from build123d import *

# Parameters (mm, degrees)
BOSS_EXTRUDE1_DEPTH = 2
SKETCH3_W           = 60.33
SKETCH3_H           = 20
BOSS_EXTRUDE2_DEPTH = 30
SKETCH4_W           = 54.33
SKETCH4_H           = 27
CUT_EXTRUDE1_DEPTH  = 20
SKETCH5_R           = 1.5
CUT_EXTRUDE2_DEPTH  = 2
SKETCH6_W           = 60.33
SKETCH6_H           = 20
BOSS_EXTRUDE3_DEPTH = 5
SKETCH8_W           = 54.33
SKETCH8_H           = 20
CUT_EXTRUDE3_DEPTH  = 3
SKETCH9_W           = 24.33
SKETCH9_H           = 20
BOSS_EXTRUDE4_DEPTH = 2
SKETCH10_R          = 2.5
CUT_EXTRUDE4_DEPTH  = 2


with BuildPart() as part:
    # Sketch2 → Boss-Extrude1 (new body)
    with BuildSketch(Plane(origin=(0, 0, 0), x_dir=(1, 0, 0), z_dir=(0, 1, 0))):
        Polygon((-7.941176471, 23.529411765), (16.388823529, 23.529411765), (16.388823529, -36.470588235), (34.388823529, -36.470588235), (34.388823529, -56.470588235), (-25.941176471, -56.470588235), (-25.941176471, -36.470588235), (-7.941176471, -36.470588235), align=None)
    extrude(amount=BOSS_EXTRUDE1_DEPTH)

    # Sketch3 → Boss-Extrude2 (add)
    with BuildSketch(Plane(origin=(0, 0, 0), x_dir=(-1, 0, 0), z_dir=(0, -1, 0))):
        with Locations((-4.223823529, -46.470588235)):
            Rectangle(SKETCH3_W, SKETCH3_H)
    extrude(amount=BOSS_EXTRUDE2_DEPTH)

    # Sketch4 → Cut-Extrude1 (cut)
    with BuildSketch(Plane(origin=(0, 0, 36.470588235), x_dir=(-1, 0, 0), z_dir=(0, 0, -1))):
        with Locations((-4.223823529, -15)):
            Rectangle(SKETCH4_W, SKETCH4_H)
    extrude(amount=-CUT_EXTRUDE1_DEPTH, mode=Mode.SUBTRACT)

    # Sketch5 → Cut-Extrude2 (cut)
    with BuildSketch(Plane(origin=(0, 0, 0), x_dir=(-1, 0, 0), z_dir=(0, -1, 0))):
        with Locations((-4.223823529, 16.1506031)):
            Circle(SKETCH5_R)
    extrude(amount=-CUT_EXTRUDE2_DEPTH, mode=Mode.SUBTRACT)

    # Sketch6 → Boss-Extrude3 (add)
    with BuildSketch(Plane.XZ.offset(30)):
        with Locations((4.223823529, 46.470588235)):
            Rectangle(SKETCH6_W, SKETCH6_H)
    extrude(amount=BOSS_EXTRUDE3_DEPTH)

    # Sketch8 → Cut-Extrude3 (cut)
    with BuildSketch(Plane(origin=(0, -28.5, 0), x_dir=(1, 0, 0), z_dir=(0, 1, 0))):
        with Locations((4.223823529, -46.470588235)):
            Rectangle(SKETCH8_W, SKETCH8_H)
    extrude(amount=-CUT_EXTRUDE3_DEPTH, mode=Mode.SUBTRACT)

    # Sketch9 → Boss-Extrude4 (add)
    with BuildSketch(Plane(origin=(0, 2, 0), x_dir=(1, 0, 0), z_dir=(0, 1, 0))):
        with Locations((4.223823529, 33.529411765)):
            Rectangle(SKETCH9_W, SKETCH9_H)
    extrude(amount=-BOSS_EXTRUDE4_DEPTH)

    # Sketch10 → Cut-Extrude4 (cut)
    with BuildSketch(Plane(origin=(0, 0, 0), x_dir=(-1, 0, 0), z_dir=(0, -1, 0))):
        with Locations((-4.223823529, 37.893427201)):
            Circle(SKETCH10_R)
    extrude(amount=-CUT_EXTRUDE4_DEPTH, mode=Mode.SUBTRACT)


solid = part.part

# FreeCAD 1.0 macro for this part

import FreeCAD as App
import Part
import Sketcher
from FreeCAD import Vector
Q = App.Units.Quantity


def add_polygon(sketch, points):
    """Adds a closed chain of lines whose ends are joined by coincident constraints."""
    first, n = sketch.GeometryCount, len(points)
    for a, b in zip(points, points[1:] + points[:1]):
        sketch.addGeometry(Part.LineSegment(App.Vector(*a, 0), App.Vector(*b, 0)), False)
    for i in range(n):
        sketch.addConstraint(Sketcher.Constraint("Coincident", first + i, 2, first + (i + 1) % n, 1))

doc = App.newDocument("Part")
body = doc.addObject("PartDesign::Body", "Body")

sketch1 = doc.addObject("Sketcher::SketchObject", "Sketch")
body.addObject(sketch1)
sketch1.AttachmentSupport = (doc.XZ_Plane, [""])
sketch1.MapMode = "FlatFace"
add_polygon(sketch1, [(16, -24), (-8, -24), (-8, 36), (-26, 36), (-26, 56), (34, 56), (34, 36), (16, 36)])
sketch1.addConstraint([
    Sketcher.Constraint("Horizontal", 0),
    Sketcher.Constraint("Vertical", 1),
    Sketcher.Constraint("Horizontal", 2),
    Sketcher.Constraint("Vertical", 3),
    Sketcher.Constraint("Horizontal", 4),
    Sketcher.Constraint("Vertical", 5),
    Sketcher.Constraint("Horizontal", 6),
    Sketcher.Constraint("Vertical", 7),
    Sketcher.Constraint("Horizontal", 2, 2, 5, 2),
    Sketcher.Constraint("Equal", 2, 6),
    Sketcher.Constraint("DistanceX", 2, 2, 2, 1, Q("18 mm")),
    Sketcher.Constraint("DistanceY", 1, 1, 1, 2, Q("60 mm")),
    Sketcher.Constraint("DistanceY", 3, 1, 3, 2, Q("20 mm")),
    Sketcher.Constraint("DistanceX", 0, 2, 0, 1, Q("24.33 mm")),
    Sketcher.Constraint("DistanceY", 0, 2, -1, 1, Q("23.529412 mm")),
    Sketcher.Constraint("DistanceX", 0, 2, -1, 1, Q("7.941176 mm")),
])
pad1 = doc.addObject("PartDesign::Pad", "Pad")
body.addObject(pad1)
pad1.Profile = sketch1
pad1.Length = 2
pad1.Reversed = True

sketch2 = doc.addObject("Sketcher::SketchObject", "Sketch001")
body.addObject(sketch2)
sketch2.AttachmentSupport = (doc.XZ_Plane, [""])
sketch2.MapMode = "FlatFace"
add_polygon(sketch2, [(34, 36), (34, 56), (-26, 56), (-26, 36)])
sketch2.addConstraint([
    Sketcher.Constraint("Vertical", 0),
    Sketcher.Constraint("Horizontal", 1),
    Sketcher.Constraint("Vertical", 2),
    Sketcher.Constraint("Horizontal", 3),
    Sketcher.Constraint("DistanceY", 0, 1, 0, 2, Q("20 mm")),
    Sketcher.Constraint("DistanceX", 1, 2, 1, 1, Q("60.33 mm")),
    Sketcher.Constraint("DistanceY", -1, 1, 0, 2, Q("56.470588 mm")),
    Sketcher.Constraint("DistanceX", -1, 1, 0, 2, Q("34.388824 mm")),
])
pad2 = doc.addObject("PartDesign::Pad", "Pad001")
body.addObject(pad2)
pad2.Profile = sketch2
pad2.Length = 30

sketch3 = doc.addObject("Sketcher::SketchObject", "Sketch002")
body.addObject(sketch3)
sketch3.AttachmentSupport = (doc.XY_Plane, [""])
sketch3.MapMode = "FlatFace"
sketch3.AttachmentOffset = App.Placement(Vector(0, 0, 36.470588), App.Rotation())
add_polygon(sketch3, [(31, -2), (31, -28), (-23, -28), (-23, -2)])
sketch3.addConstraint([
    Sketcher.Constraint("Vertical", 0),
    Sketcher.Constraint("Horizontal", 1),
    Sketcher.Constraint("Vertical", 2),
    Sketcher.Constraint("Horizontal", 3),
    Sketcher.Constraint("DistanceY", 0, 2, 0, 1, Q("27 mm")),
    Sketcher.Constraint("DistanceX", 1, 2, 1, 1, Q("54.33 mm")),
    Sketcher.Constraint("DistanceY", 0, 2, -1, 1, Q("28.5 mm")),
    Sketcher.Constraint("DistanceX", -1, 1, 0, 2, Q("31.388824 mm")),
])
pocket1 = doc.addObject("PartDesign::Pocket", "Pocket")
body.addObject(pocket1)
pocket1.Profile = sketch3
pocket1.Length = 20
pocket1.Reversed = True

sketch4 = doc.addObject("Sketcher::SketchObject", "Sketch003")
body.addObject(sketch4)
sketch4.AttachmentSupport = (doc.XZ_Plane, [""])
sketch4.MapMode = "FlatFace"
sketch4.addGeometry(Part.Circle(Vector(4.2, -16.2, 0), Vector(0, 0, 1), 1.5), False)
sketch4.addConstraint([
    Sketcher.Constraint("Diameter", 0, Q("3 mm")),
    Sketcher.Constraint("DistanceX", -1, 1, 0, 3, Q("4.223824 mm")),
    Sketcher.Constraint("DistanceY", 0, 3, -1, 1, Q("16.150603 mm")),
])
pocket2 = doc.addObject("PartDesign::Pocket", "Pocket001")
body.addObject(pocket2)
pocket2.Profile = sketch4
pocket2.Length = 2

sketch5 = doc.addObject("Sketcher::SketchObject", "Sketch004")
body.addObject(sketch5)
sketch5.AttachmentSupport = (doc.XZ_Plane, [""])
sketch5.MapMode = "FlatFace"
sketch5.AttachmentOffset = App.Placement(Vector(0, 0, 30), App.Rotation())
add_polygon(sketch5, [(-26, 56), (-26, 36), (34, 36), (34, 56)])
sketch5.addConstraint([
    Sketcher.Constraint("Vertical", 0),
    Sketcher.Constraint("Horizontal", 1),
    Sketcher.Constraint("Vertical", 2),
    Sketcher.Constraint("Horizontal", 3),
    Sketcher.Constraint("DistanceY", 0, 2, 0, 1, Q("20 mm")),
    Sketcher.Constraint("DistanceX", 1, 1, 1, 2, Q("60.33 mm")),
    Sketcher.Constraint("DistanceY", -1, 1, 0, 2, Q("36.470588 mm")),
    Sketcher.Constraint("DistanceX", 0, 2, -1, 1, Q("25.941176 mm")),
])
pad3 = doc.addObject("PartDesign::Pad", "Pad002")
body.addObject(pad3)
pad3.Profile = sketch5
pad3.Length = 5

sketch6 = doc.addObject("Sketcher::SketchObject", "Sketch005")
body.addObject(sketch6)
sketch6.AttachmentSupport = (doc.XZ_Plane, [""])
sketch6.MapMode = "FlatFace"
sketch6.AttachmentOffset = App.Placement(Vector(0, 0, 28.5), App.Rotation())
add_polygon(sketch6, [(-23, 36), (-23, 56), (31, 56), (31, 36)])
sketch6.addConstraint([
    Sketcher.Constraint("Vertical", 0),
    Sketcher.Constraint("Horizontal", 1),
    Sketcher.Constraint("Vertical", 2),
    Sketcher.Constraint("Horizontal", 3),
    Sketcher.Constraint("DistanceY", 0, 1, 0, 2, Q("20 mm")),
    Sketcher.Constraint("DistanceX", 1, 1, 1, 2, Q("54.33 mm")),
    Sketcher.Constraint("DistanceY", -1, 1, 0, 2, Q("56.470588 mm")),
    Sketcher.Constraint("DistanceX", 0, 2, -1, 1, Q("22.941176 mm")),
])
pocket3 = doc.addObject("PartDesign::Pocket", "Pocket002")
body.addObject(pocket3)
pocket3.Profile = sketch6
pocket3.Length = 3
pocket3.Reversed = True

sketch7 = doc.addObject("Sketcher::SketchObject", "Sketch006")
body.addObject(sketch7)
sketch7.AttachmentSupport = (doc.XZ_Plane, [""])
sketch7.MapMode = "FlatFace"
sketch7.AttachmentOffset = App.Placement(Vector(0, 0, -2), App.Rotation())
add_polygon(sketch7, [(-8, -44), (-8, -24), (16, -24), (16, -44)])
sketch7.addConstraint([
    Sketcher.Constraint("Vertical", 0),
    Sketcher.Constraint("Horizontal", 1),
    Sketcher.Constraint("Vertical", 2),
    Sketcher.Constraint("Horizontal", 3),
    Sketcher.Constraint("DistanceY", 0, 1, 0, 2, Q("20 mm")),
    Sketcher.Constraint("DistanceX", 1, 1, 1, 2, Q("24.33 mm")),
    Sketcher.Constraint("DistanceY", 0, 2, -1, 1, Q("23.529412 mm")),
    Sketcher.Constraint("DistanceX", 0, 2, -1, 1, Q("7.941176 mm")),
])
pad4 = doc.addObject("PartDesign::Pad", "Pad003")
body.addObject(pad4)
pad4.Profile = sketch7
pad4.Length = 2

sketch8 = doc.addObject("Sketcher::SketchObject", "Sketch007")
body.addObject(sketch8)
sketch8.AttachmentSupport = (doc.XZ_Plane, [""])
sketch8.MapMode = "FlatFace"
sketch8.addGeometry(Part.Circle(Vector(4.2, -37.9, 0), Vector(0, 0, 1), 2.5), False)
sketch8.addConstraint([
    Sketcher.Constraint("Diameter", 0, Q("5 mm")),
    Sketcher.Constraint("DistanceX", -1, 1, 0, 3, Q("4.223824 mm")),
    Sketcher.Constraint("DistanceY", 0, 3, -1, 1, Q("37.893427 mm")),
])
pocket4 = doc.addObject("PartDesign::Pocket", "Pocket003")
body.addObject(pocket4)
pocket4.Profile = sketch8
pocket4.Length = 2

doc.recompute()
